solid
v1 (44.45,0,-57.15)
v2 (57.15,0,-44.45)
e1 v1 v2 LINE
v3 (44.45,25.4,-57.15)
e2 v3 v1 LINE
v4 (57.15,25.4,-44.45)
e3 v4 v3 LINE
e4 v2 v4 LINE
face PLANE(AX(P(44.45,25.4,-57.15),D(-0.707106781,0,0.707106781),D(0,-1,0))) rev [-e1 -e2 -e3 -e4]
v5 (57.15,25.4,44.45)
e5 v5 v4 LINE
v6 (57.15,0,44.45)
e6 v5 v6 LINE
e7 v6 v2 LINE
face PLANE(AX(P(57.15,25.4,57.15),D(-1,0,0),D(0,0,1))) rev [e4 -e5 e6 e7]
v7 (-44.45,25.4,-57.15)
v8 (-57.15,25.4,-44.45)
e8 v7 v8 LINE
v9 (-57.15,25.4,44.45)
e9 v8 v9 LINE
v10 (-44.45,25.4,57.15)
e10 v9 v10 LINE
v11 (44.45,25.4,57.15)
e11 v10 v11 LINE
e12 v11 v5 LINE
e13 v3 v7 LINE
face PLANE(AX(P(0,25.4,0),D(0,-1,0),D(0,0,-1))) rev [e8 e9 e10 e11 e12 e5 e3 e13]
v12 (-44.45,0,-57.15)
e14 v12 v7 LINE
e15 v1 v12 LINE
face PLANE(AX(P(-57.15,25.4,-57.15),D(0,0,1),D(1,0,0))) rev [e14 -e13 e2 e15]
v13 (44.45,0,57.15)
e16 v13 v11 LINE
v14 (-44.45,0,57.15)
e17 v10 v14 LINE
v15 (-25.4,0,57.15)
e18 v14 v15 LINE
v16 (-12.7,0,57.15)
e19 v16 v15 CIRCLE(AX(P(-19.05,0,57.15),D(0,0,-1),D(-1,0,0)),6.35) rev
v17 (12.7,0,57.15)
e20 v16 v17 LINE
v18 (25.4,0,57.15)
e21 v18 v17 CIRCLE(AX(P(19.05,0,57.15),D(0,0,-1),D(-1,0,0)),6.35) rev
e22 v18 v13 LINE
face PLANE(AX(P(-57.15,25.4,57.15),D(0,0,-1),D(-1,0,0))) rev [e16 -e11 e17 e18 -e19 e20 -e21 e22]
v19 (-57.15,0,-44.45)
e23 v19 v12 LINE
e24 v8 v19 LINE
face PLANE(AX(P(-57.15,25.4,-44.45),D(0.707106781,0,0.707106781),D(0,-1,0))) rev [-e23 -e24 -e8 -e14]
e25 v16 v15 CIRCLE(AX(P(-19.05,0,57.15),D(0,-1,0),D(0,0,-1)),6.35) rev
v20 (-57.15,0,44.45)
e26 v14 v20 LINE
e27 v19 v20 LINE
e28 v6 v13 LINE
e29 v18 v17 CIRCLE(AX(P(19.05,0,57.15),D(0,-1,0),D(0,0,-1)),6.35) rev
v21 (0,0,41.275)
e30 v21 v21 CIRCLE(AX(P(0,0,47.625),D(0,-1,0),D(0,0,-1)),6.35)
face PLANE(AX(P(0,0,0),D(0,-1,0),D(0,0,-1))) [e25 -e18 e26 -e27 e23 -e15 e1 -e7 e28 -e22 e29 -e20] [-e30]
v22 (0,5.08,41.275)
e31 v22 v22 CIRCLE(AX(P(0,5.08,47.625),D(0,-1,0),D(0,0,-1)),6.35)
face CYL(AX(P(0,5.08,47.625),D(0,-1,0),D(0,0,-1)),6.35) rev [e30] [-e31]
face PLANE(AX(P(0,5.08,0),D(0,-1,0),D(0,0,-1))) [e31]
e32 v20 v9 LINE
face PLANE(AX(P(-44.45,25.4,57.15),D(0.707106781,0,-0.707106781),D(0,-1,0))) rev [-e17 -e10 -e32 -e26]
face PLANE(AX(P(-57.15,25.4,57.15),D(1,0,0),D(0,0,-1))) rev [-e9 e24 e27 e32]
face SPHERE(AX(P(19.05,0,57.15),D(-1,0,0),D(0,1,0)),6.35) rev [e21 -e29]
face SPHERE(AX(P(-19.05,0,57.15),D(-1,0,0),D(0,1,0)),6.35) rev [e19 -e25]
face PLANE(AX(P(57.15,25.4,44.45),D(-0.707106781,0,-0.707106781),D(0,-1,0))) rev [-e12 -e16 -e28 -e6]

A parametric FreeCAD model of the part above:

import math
import FreeCAD as App
import Part
import Sketcher
from FreeCAD import Vector
Q = App.Units.Quantity


def edges_at(feature, points):
    """Names of the edges that pass closest to the given points."""
    edges = feature.Shape.Edges
    near = lambda p: min(range(len(edges)), key=lambda i: edges[i].distToShape(Part.Vertex(*p))[0])
    return sorted({f"Edge{near(p) + 1}" for p in points})


def add_polygon(sketch, points):
    """Adds a closed chain of lines whose ends are joined by coincident constraints."""
    first, n = sketch.GeometryCount, len(points)
    for a, b in zip(points, points[1:] + points[:1]):
        sketch.addGeometry(Part.LineSegment(App.Vector(*a, 0), App.Vector(*b, 0)), False)
    for i in range(n):
        sketch.addConstraint(Sketcher.Constraint("Coincident", first + i, 2, first + (i + 1) % n, 1))

doc = App.newDocument("Part")
params = doc.addObject("Spreadsheet::Sheet", "Params")
for row, (alias, value) in enumerate([
    ("sketch1_width", "4.5 in"),
    ("pad1_length", "1 in"),
    ("chamfer_size", "0.5 in"),
    ("sketch2_diameter", "0.5 in"),
    ("pocket1_length", "0.2 in"),
    ("sketch3_radius", "0.25 in"),
    ("groove_angle", "360 deg"),
], start=1):
    params.set(f"A{row}", alias)
    params.set(f"B{row}", "=" + value)
    params.setAlias(f"B{row}", alias)

body = doc.addObject("PartDesign::Body", "Body")

# Sketch on XZ plane
sketch1 = body.newObject("Sketcher::SketchObject", "Sketch")
sketch1.AttachmentSupport = (doc.getObject("XZ_Plane"), [""])
sketch1.MapMode = "FlatFace"
add_polygon(sketch1, [(-57.15, -57.15), (-57.15, 57.15), (57.15, 57.15), (57.15, -57.15)])  # lines 0-3
sketch1.addConstraint([
    Sketcher.Constraint("Vertical", 0),
    Sketcher.Constraint("Horizontal", 1),
    Sketcher.Constraint("Vertical", 2),
    Sketcher.Constraint("Horizontal", 3),
    Sketcher.Constraint("Symmetric", 0, 2, 2, 2, -1, 1),
    Sketcher.Constraint("Equal", 3, 0),
    Sketcher.Constraint("DistanceX", 1, 1, 1, 2, Q("4.5 in")),
])
sketch1.setExpression("Constraints[10]", "Params.sketch1_width")
pad1 = body.newObject("PartDesign::Pad", "Pad")
pad1.Profile = sketch1
pad1.setExpression("Length", "Params.pad1_length")
pad1.Reversed = True
doc.recompute()

chamfer = body.newObject("PartDesign::Chamfer", "Chamfer")
chamfer.Base = (pad1, edges_at(pad1, [
    (57.15, 12.7, 57.15),
    (-57.15, 12.7, 57.15),
    (-57.15, 12.7, -57.15),
    (57.15, 12.7, -57.15),
]))
chamfer.setExpression("Size", "Params.chamfer_size")

# Sketch on XZ plane
sketch2 = body.newObject("Sketcher::SketchObject", "Sketch001")
sketch2.AttachmentSupport = (doc.getObject("XZ_Plane"), [""])
sketch2.MapMode = "FlatFace"
sketch2.addGeometry(Part.Circle(Vector(0, 47.625, 0), Vector(0, 0, 1), 6.35), False)
sketch2.addConstraint([
    Sketcher.Constraint("PointOnObject", 0, 3, -2),
    Sketcher.Constraint("Diameter", 0, Q("0.5 in")),
    Sketcher.Constraint("DistanceY", -1, 1, 0, 3, Q("1.875 in")),
])
sketch2.setExpression("Constraints[1]", "Params.sketch2_diameter")
pocket1 = body.newObject("PartDesign::Pocket", "Pocket")
pocket1.Profile = sketch2
pocket1.setExpression("Length", "Params.pocket1_length")

# Sketch on XY plane
sketch3 = body.newObject("Sketcher::SketchObject", "Sketch002")
sketch3.AttachmentSupport = (doc.getObject("XY_Plane"), [""])
sketch3.MapMode = "FlatFace"
sketch3.AttachmentOffset = App.Placement(Vector(0, 0, 2.25 * 25.4), App.Rotation())
sketch3.addGeometry([
    Part.LineSegment(Vector(-25.4, 0, 0), Vector(-12.7, 0, 0)),
    Part.ArcOfCircle(Part.Circle(Vector(-19.05, 0, 0), Vector(0, 0, 1), 6.35), math.radians(0), math.radians(180)),
    Part.LineSegment(Vector(12.7, 0, 0), Vector(25.4, 0, 0)),
    Part.ArcOfCircle(Part.Circle(Vector(19.05, 0, 0), Vector(0, 0, 1), 6.35), math.radians(0), math.radians(180)),
], False)
sketch3.addConstraint([
    Sketcher.Constraint("Coincident", 0, 1, 1, 2),
    Sketcher.Constraint("Coincident", 1, 1, 0, 2),
    Sketcher.Constraint("Coincident", 2, 1, 3, 2),
    Sketcher.Constraint("Coincident", 3, 1, 2, 2),
    Sketcher.Constraint("Horizontal", 0),
    Sketcher.Constraint("Horizontal", 2),
    Sketcher.Constraint("Equal", 1, 3),
    Sketcher.Constraint("Symmetric", 1, 3, 3, 3, -1, 1),
    Sketcher.Constraint("PointOnObject", 1, 3, -1),
    Sketcher.Constraint("PointOnObject", 0, 1, -1),
    Sketcher.Constraint("PointOnObject", 2, 1, -1),
    Sketcher.Constraint("Radius", 1, Q("0.25 in")),
    Sketcher.Constraint("DistanceX", 0, 1, -1, 1, Q("1 in")),
])
sketch3.setExpression("Constraints[11]", "Params.sketch3_radius")
groove = body.newObject("PartDesign::Groove", "Groove")
groove.Profile = sketch3
groove.ReferenceAxis = (sketch3, ["H_Axis"])
groove.setExpression("Angle", "Params.groove_angle")

doc.recompute()
